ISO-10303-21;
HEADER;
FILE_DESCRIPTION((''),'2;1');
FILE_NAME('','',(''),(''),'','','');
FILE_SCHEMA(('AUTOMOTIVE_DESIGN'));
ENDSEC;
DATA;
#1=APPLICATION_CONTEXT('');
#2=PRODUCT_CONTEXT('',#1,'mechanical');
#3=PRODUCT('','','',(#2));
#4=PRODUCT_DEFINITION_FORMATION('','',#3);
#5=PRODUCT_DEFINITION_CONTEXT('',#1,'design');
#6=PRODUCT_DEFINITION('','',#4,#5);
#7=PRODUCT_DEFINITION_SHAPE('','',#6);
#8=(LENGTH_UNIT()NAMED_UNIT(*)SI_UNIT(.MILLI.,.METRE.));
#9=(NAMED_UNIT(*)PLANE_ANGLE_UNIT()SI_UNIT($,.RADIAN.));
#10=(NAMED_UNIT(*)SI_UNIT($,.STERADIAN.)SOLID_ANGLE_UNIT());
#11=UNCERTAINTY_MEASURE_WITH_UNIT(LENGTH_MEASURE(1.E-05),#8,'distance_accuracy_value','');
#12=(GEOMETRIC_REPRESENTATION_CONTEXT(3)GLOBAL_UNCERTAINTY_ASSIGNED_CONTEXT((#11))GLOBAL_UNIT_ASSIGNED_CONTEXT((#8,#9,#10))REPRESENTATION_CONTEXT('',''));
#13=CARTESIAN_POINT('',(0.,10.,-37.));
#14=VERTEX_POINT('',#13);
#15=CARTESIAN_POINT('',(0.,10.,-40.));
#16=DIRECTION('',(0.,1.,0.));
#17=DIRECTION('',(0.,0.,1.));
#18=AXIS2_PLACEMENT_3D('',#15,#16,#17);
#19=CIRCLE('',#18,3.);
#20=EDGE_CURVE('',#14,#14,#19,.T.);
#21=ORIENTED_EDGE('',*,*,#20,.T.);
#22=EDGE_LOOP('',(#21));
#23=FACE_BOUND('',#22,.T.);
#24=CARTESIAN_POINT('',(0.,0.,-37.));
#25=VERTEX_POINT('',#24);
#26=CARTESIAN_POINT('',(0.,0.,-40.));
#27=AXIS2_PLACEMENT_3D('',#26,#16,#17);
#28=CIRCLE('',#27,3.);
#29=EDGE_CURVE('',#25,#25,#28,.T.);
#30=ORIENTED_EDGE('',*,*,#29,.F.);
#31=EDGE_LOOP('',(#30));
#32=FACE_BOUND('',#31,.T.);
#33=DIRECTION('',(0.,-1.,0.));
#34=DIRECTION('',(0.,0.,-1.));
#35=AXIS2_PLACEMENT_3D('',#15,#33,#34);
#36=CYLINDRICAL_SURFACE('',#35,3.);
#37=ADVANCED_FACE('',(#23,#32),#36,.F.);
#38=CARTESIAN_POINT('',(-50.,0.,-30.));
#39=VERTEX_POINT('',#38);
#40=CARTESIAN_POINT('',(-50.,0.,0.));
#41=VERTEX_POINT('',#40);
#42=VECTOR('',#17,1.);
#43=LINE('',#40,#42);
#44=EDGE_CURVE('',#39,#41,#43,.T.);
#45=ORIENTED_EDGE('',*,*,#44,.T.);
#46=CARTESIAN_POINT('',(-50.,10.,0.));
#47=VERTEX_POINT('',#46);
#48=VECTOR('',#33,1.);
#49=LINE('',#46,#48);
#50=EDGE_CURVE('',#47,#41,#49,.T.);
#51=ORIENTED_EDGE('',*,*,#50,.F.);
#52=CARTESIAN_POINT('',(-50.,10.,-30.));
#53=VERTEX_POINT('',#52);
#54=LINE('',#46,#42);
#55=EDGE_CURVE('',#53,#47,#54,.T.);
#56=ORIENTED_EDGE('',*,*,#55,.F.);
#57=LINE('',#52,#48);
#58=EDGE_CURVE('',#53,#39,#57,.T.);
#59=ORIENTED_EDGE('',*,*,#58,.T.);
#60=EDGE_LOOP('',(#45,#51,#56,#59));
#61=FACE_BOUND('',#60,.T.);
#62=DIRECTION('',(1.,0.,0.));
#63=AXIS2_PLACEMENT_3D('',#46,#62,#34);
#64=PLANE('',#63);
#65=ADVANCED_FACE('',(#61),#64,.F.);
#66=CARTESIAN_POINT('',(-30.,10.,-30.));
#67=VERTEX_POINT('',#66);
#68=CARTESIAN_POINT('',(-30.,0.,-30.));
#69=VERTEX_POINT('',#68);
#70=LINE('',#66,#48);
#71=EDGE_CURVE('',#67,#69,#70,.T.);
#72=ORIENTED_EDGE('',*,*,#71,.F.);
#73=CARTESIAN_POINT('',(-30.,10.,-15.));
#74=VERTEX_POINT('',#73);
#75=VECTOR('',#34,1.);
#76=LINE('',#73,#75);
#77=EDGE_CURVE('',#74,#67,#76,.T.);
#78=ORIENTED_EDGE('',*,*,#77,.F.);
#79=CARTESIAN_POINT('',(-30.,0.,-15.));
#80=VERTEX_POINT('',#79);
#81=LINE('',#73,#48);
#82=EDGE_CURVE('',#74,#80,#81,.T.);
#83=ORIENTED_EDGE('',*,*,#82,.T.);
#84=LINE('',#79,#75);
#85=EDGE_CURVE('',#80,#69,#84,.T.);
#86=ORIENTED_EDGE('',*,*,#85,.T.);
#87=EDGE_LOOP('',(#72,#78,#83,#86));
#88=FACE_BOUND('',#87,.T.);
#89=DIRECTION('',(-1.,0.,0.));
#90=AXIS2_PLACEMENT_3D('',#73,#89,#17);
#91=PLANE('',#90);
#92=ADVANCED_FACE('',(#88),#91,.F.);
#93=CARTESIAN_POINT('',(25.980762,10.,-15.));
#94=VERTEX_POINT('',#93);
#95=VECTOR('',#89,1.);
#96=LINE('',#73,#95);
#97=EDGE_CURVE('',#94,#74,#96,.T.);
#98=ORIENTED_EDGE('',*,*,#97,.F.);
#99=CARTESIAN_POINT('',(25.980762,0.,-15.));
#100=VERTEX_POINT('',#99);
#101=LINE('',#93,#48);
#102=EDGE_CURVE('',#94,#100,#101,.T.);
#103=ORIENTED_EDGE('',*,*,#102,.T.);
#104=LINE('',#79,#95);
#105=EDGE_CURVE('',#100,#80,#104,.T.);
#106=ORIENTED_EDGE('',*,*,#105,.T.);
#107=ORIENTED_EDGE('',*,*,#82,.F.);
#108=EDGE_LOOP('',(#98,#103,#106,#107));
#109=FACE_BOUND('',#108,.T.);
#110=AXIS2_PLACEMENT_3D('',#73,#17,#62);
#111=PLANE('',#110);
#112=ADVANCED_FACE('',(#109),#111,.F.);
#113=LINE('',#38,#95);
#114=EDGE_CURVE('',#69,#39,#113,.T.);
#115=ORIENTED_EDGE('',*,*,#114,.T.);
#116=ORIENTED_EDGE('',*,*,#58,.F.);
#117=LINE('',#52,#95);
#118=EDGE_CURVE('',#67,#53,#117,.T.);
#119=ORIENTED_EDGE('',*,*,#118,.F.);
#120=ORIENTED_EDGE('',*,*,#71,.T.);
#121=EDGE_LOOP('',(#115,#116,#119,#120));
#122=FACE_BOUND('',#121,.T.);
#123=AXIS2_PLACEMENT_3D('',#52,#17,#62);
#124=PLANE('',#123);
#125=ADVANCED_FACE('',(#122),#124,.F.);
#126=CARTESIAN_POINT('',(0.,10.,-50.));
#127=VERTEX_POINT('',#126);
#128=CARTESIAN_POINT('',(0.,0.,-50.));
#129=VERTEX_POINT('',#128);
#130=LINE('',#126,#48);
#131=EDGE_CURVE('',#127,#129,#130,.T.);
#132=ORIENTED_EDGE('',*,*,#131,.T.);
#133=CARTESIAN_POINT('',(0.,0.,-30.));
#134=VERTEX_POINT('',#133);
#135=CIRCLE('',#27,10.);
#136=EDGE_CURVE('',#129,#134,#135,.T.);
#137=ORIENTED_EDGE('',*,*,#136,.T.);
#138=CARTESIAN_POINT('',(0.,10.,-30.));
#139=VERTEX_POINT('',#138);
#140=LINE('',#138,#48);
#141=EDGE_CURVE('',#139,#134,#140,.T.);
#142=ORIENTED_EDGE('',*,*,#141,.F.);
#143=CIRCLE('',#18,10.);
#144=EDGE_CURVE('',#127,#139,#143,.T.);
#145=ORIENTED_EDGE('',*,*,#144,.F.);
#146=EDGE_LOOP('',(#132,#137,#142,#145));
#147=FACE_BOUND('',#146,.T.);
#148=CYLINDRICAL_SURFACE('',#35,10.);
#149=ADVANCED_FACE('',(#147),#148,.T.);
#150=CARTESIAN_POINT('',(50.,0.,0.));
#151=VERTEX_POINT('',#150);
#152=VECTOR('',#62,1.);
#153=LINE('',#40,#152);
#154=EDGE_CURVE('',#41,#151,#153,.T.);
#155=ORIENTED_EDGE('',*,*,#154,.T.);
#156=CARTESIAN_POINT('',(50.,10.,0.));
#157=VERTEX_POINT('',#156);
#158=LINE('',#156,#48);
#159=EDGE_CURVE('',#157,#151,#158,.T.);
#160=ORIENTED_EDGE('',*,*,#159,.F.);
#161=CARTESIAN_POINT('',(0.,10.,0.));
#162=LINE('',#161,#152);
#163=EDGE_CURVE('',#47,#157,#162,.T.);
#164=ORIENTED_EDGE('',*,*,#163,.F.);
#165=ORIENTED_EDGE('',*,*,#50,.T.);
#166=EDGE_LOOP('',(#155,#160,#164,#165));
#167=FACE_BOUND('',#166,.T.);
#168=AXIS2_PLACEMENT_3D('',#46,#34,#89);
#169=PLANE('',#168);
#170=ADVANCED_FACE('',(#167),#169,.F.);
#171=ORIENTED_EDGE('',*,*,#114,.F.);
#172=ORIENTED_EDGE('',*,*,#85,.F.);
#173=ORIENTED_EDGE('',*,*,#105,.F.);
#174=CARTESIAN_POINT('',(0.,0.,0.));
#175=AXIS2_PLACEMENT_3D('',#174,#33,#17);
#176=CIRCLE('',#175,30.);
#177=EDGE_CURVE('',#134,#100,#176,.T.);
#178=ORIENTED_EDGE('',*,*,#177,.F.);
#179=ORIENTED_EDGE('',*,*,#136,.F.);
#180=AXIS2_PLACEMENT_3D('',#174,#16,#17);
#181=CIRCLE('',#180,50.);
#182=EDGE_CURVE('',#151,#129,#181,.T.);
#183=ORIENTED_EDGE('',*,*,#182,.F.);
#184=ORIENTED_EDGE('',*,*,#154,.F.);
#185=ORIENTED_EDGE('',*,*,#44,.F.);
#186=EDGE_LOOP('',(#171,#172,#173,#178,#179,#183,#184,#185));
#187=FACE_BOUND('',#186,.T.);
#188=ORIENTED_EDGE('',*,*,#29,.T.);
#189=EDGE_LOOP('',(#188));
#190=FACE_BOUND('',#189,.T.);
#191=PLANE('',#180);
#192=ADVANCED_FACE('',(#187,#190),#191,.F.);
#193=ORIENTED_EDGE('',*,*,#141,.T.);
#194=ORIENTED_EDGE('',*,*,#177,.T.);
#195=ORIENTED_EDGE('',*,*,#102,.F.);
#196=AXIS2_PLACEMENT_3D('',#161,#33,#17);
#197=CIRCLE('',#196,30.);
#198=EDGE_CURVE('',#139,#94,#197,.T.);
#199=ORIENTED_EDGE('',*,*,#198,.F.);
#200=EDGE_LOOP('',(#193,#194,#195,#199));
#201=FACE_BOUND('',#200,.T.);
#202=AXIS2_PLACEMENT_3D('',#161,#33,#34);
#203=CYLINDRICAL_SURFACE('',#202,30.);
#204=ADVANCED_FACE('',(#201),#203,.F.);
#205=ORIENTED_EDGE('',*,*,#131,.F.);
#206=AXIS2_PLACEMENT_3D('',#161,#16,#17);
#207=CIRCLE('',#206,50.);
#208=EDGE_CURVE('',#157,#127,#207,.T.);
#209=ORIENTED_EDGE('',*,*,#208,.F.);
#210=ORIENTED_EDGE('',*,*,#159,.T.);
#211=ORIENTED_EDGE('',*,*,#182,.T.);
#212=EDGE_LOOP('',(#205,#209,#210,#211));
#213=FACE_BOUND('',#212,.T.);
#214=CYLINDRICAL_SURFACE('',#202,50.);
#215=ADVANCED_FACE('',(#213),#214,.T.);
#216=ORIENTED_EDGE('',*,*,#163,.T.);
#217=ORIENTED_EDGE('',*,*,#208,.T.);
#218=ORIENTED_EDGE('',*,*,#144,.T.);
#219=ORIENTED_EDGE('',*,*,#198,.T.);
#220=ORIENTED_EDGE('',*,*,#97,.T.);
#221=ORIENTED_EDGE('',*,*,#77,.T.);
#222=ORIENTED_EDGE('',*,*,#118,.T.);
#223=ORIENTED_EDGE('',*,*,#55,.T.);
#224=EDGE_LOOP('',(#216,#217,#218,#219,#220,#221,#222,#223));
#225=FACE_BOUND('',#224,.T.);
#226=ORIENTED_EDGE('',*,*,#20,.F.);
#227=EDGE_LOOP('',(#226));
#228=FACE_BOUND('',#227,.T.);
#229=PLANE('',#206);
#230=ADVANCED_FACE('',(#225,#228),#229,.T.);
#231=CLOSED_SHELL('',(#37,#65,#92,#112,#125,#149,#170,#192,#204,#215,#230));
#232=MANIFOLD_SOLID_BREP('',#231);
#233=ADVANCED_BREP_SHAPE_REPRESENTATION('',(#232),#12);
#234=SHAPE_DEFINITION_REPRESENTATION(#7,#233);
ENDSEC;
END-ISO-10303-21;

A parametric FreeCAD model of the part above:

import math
import FreeCAD as App
import Part
import Sketcher

doc = App.newDocument("Part")
body = doc.addObject("PartDesign::Body", "Body")

# Sketch on XZ plane
sketch1 = doc.addObject("Sketcher::SketchObject", "Sketch")
body.addObject(sketch1)
sketch1.AttachmentSupport = (doc.XZ_Plane, [""])
sketch1.MapMode = "FlatFace"
sketch1.addGeometry(Part.LineSegment(App.Vector(-50, 0, 0), App.Vector(50, 0, 0)), False)
sketch1.addGeometry(Part.ArcOfCircle(Part.Circle(App.Vector(0, 0, 0), App.Vector(0, 0, 1), 50), math.radians(-90), math.radians(0)), False)
sketch1.addGeometry(Part.ArcOfCircle(Part.Circle(App.Vector(0, -40, 0), App.Vector(0, 0, 1), 10), math.radians(90), math.radians(270)), False)
sketch1.addGeometry(Part.ArcOfCircle(Part.Circle(App.Vector(0, 0, 0), App.Vector(0, 0, 1), 30), math.radians(-90), math.radians(-30)), False)
sketch1.addGeometry(Part.LineSegment(App.Vector(25.980762, -15, 0), App.Vector(-30, -15, 0)), False)
sketch1.addGeometry(Part.LineSegment(App.Vector(-30, -15, 0), App.Vector(-30, -30, 0)), False)
sketch1.addGeometry(Part.LineSegment(App.Vector(-30, -30, 0), App.Vector(-50, -30, 0)), False)
sketch1.addGeometry(Part.LineSegment(App.Vector(-50, -30, 0), App.Vector(-50, 0, 0)), False)
sketch1.addGeometry(Part.Circle(App.Vector(0, -40, 0), App.Vector(0, 0, 1), 3), False)
sketch1.addConstraint(Sketcher.Constraint("Coincident", 0, 2, 1, 2))
sketch1.addConstraint(Sketcher.Constraint("Tangent", 1, 1, 2, 2))
sketch1.addConstraint(Sketcher.Constraint("Tangent", 2, 1, 3, 1))
sketch1.addConstraint(Sketcher.Constraint("Coincident", 3, 2, 4, 1))
sketch1.addConstraint(Sketcher.Constraint("Coincident", 4, 2, 5, 1))
sketch1.addConstraint(Sketcher.Constraint("Coincident", 5, 2, 6, 1))
sketch1.addConstraint(Sketcher.Constraint("Coincident", 6, 2, 7, 1))
sketch1.addConstraint(Sketcher.Constraint("Coincident", 7, 2, 0, 1))
sketch1.addConstraint(Sketcher.Constraint("Horizontal", 0))
sketch1.addConstraint(Sketcher.Constraint("Horizontal", 4))
sketch1.addConstraint(Sketcher.Constraint("Vertical", 5))
sketch1.addConstraint(Sketcher.Constraint("Horizontal", 6))
sketch1.addConstraint(Sketcher.Constraint("Vertical", 7))
sketch1.addConstraint(Sketcher.Constraint("Coincident", 1, 3, -1, 1))
sketch1.addConstraint(Sketcher.Constraint("Coincident", 3, 3, -1, 1))
sketch1.addConstraint(Sketcher.Constraint("Coincident", 8, 3, 2, 3))
sketch1.addConstraint(Sketcher.Constraint("Symmetric", 0, 2, 7, 2, -1, 1))
sketch1.addConstraint(Sketcher.Constraint("PointOnObject", 2, 3, -2))
sketch1.addConstraint(Sketcher.Constraint("Horizontal", 2, 1, 5, 2))
sketch1.addConstraint(Sketcher.Constraint("Diameter", 8, 6.0))
sketch1.addConstraint(Sketcher.Constraint("Radius", 1, 50.0))
sketch1.addConstraint(Sketcher.Constraint("Radius", 2, 10.0))
sketch1.addConstraint(Sketcher.Constraint("DistanceX", 6, 2, 6, 1, 20.0))
sketch1.addConstraint(Sketcher.Constraint("DistanceY", 5, 2, 5, 1, 15.0))
pad1 = doc.addObject("PartDesign::Pad", "Pad")
body.addObject(pad1)
pad1.Profile = sketch1
pad1.Length = 10
pad1.Reversed = True

doc.recompute()
